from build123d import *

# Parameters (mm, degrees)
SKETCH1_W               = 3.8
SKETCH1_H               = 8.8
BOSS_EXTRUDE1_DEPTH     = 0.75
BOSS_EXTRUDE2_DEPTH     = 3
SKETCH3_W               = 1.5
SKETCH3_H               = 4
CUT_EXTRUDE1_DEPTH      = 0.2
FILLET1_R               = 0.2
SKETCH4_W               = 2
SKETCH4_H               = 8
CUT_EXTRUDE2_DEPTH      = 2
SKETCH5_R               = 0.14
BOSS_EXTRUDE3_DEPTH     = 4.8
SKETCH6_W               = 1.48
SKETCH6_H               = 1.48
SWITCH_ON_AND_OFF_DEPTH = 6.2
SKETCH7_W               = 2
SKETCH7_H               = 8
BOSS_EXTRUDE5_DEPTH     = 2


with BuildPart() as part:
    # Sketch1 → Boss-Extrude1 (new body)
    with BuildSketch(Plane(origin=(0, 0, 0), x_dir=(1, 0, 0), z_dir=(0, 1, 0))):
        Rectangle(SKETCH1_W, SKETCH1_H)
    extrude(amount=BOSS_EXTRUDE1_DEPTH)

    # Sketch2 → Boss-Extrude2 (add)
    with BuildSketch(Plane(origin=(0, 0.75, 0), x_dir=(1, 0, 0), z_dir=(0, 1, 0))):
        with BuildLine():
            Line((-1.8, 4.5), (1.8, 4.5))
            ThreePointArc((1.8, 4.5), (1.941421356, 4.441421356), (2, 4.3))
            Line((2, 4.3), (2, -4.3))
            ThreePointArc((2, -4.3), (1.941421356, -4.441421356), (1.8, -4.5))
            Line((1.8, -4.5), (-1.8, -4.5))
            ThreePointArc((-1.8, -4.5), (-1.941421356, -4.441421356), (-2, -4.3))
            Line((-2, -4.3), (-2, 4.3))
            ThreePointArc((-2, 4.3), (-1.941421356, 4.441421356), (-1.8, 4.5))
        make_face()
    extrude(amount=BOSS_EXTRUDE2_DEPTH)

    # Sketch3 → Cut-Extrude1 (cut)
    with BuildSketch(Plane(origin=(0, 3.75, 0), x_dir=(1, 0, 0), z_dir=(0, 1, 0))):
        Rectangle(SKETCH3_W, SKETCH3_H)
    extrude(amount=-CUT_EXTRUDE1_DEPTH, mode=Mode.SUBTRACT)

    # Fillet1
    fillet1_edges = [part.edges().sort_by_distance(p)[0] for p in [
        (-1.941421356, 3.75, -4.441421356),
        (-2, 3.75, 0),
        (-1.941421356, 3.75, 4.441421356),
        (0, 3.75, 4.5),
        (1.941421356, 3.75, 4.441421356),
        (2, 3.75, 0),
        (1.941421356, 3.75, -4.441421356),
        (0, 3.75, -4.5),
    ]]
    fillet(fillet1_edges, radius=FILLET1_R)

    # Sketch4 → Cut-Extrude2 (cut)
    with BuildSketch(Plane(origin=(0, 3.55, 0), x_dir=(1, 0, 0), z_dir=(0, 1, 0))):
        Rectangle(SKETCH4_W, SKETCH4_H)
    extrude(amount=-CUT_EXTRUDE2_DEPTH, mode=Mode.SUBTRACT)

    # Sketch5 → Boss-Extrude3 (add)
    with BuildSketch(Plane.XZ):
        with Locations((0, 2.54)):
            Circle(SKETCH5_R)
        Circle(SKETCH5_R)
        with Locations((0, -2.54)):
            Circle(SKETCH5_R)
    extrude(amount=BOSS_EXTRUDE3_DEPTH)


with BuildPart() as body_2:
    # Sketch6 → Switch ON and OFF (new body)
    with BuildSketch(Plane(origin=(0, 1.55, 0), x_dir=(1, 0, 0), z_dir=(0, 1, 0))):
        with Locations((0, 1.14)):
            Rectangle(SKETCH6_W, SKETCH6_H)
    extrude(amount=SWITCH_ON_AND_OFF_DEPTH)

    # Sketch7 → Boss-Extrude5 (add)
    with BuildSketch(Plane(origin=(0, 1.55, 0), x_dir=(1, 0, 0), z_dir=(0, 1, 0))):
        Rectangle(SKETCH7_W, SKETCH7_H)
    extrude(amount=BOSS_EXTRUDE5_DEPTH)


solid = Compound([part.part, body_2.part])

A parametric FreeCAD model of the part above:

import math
import FreeCAD as App
import Part
import Sketcher
from FreeCAD import Vector


def edges_at(feature, points):
    """Names of the edges that pass closest to the given points."""
    edges = feature.Shape.Edges
    near = lambda p: min(range(len(edges)), key=lambda i: edges[i].distToShape(Part.Vertex(*p))[0])
    return sorted({f"Edge{near(p) + 1}" for p in points})

doc = App.newDocument("Part")
body = doc.addObject("PartDesign::Body", "Body")

sketch1 = body.newObject("Sketcher::SketchObject", "Sketch")
sketch1.AttachmentSupport = (doc.getObject("XZ_Plane"), [""])
sketch1.MapMode = "FlatFace"
sketch1.addGeometry([
    Part.LineSegment(Vector(-1.9, -4.4, 0), Vector(-1.9, 4.4, 0)),
    Part.LineSegment(Vector(-1.9, 4.4, 0), Vector(1.9, 4.4, 0)),
    Part.LineSegment(Vector(1.9, 4.4, 0), Vector(1.9, -4.4, 0)),
    Part.LineSegment(Vector(1.9, -4.4, 0), Vector(-1.9, -4.4, 0)),
], False)
sketch1.addConstraint([
    Sketcher.Constraint("Coincident", 0, 2, 1, 1),
    Sketcher.Constraint("Coincident", 1, 2, 2, 1),
    Sketcher.Constraint("Coincident", 2, 2, 3, 1),
    Sketcher.Constraint("Coincident", 3, 2, 0, 1),
    Sketcher.Constraint("Vertical", 0),
    Sketcher.Constraint("Horizontal", 1),
    Sketcher.Constraint("Vertical", 2),
    Sketcher.Constraint("Horizontal", 3),
    Sketcher.Constraint("Symmetric", 0, 2, 2, 2, -1, 1),
    Sketcher.Constraint("DistanceX", 1, 1, 1, 2, 3.8),
    Sketcher.Constraint("DistanceY", 0, 1, 0, 2, 8.8),
])
pad1 = body.newObject("PartDesign::Pad", "Pad")
pad1.Profile = sketch1
pad1.Length = 0.75
pad1.Reversed = True

sketch2 = body.newObject("Sketcher::SketchObject", "Sketch001")
sketch2.AttachmentSupport = (doc.getObject("XZ_Plane"), [""])
sketch2.MapMode = "FlatFace"
sketch2.AttachmentOffset = App.Placement(Vector(0, 0, -0.75), App.Rotation())
sketch2.addGeometry([
    Part.LineSegment(Vector(1.8, -4.5, 0), Vector(-1.8, -4.5, 0)),
    Part.ArcOfCircle(Part.Circle(Vector(-1.8, -4.3, 0), Vector(0, 0, 1), 0.2), math.radians(-180), math.radians(-90)),
    Part.LineSegment(Vector(-2, -4.3, 0), Vector(-2, 4.3, 0)),
    Part.ArcOfCircle(Part.Circle(Vector(-1.8, 4.3, 0), Vector(0, 0, 1), 0.2), math.radians(90), math.radians(180)),
    Part.LineSegment(Vector(-1.8, 4.5, 0), Vector(1.8, 4.5, 0)),
    Part.ArcOfCircle(Part.Circle(Vector(1.8, 4.3, 0), Vector(0, 0, 1), 0.2), math.radians(0), math.radians(90)),
    Part.LineSegment(Vector(2, 4.3, 0), Vector(2, -4.3, 0)),
    Part.ArcOfCircle(Part.Circle(Vector(1.8, -4.3, 0), Vector(0, 0, 1), 0.2), math.radians(-90), math.radians(0)),
], False)
sketch2.addConstraint([
    Sketcher.Constraint("Tangent", 0, 2, 1, 2),
    Sketcher.Constraint("Tangent", 1, 1, 2, 1),
    Sketcher.Constraint("Tangent", 2, 2, 3, 2),
    Sketcher.Constraint("Tangent", 3, 1, 4, 1),
    Sketcher.Constraint("Tangent", 4, 2, 5, 2),
    Sketcher.Constraint("Tangent", 5, 1, 6, 1),
    Sketcher.Constraint("Tangent", 6, 2, 7, 2),
    Sketcher.Constraint("Tangent", 7, 1, 0, 1),
    Sketcher.Constraint("Horizontal", 0),
    Sketcher.Constraint("Vertical", 2),
    Sketcher.Constraint("Horizontal", 4),
    Sketcher.Constraint("Vertical", 6),
    Sketcher.Constraint("Equal", 1, 3),
    Sketcher.Constraint("Equal", 3, 5),
    Sketcher.Constraint("Equal", 5, 7),
    Sketcher.Constraint("Symmetric", 1, 3, 5, 3, -1, 1),
    Sketcher.Constraint("Radius", 1, 0.2),
    Sketcher.Constraint("DistanceX", 0, 2, 0, 1, 3.6),
    Sketcher.Constraint("DistanceY", 2, 1, 2, 2, 8.6),
])
pad2 = body.newObject("PartDesign::Pad", "Pad001")
pad2.Profile = sketch2
pad2.Length = 3
pad2.Reversed = True

sketch3 = body.newObject("Sketcher::SketchObject", "Sketch002")
sketch3.AttachmentSupport = (doc.getObject("XZ_Plane"), [""])
sketch3.MapMode = "FlatFace"
sketch3.AttachmentOffset = App.Placement(Vector(0, 0, -3.75), App.Rotation())
sketch3.addGeometry([
    Part.LineSegment(Vector(-0.8, -2, 0), Vector(-0.8, 2, 0)),
    Part.LineSegment(Vector(-0.8, 2, 0), Vector(0.8, 2, 0)),
    Part.LineSegment(Vector(0.8, 2, 0), Vector(0.8, -2, 0)),
    Part.LineSegment(Vector(0.8, -2, 0), Vector(-0.8, -2, 0)),
], False)
sketch3.addConstraint([
    Sketcher.Constraint("Coincident", 0, 2, 1, 1),
    Sketcher.Constraint("Coincident", 1, 2, 2, 1),
    Sketcher.Constraint("Coincident", 2, 2, 3, 1),
    Sketcher.Constraint("Coincident", 3, 2, 0, 1),
    Sketcher.Constraint("Vertical", 0),
    Sketcher.Constraint("Horizontal", 1),
    Sketcher.Constraint("Vertical", 2),
    Sketcher.Constraint("Horizontal", 3),
    Sketcher.Constraint("Symmetric", 0, 2, 2, 2, -1, 1),
    Sketcher.Constraint("DistanceY", 0, 1, 0, 2, 4.0),
    Sketcher.Constraint("DistanceX", 1, 1, 1, 2, 1.5),
])
pocket1 = body.newObject("PartDesign::Pocket", "Pocket")
pocket1.Profile = sketch3
pocket1.Length = 0.2
pocket1.Reversed = True
doc.recompute()

fillet = body.newObject("PartDesign::Fillet", "Fillet")
fillet.Base = (pocket1, edges_at(pocket1, [
    (-1.941, 3.75, -4.441),
    (-2, 3.75, 0),
    (-1.941, 3.75, 4.441),
    (0, 3.75, 4.5),
    (1.941, 3.75, 4.441),
    (2, 3.75, 0),
    (1.941, 3.75, -4.441),
    (0, 3.75, -4.5),
]))
fillet.Radius = 0.2

sketch4 = body.newObject("Sketcher::SketchObject", "Sketch003")
sketch4.AttachmentSupport = (doc.getObject("XZ_Plane"), [""])
sketch4.MapMode = "FlatFace"
sketch4.AttachmentOffset = App.Placement(Vector(0, 0, -3.55), App.Rotation())
sketch4.addGeometry([
    Part.LineSegment(Vector(-1, -4, 0), Vector(-1, 4, 0)),
    Part.LineSegment(Vector(-1, 4, 0), Vector(1, 4, 0)),
    Part.LineSegment(Vector(1, 4, 0), Vector(1, -4, 0)),
    Part.LineSegment(Vector(1, -4, 0), Vector(-1, -4, 0)),
], False)
sketch4.addConstraint([
    Sketcher.Constraint("Coincident", 0, 2, 1, 1),
    Sketcher.Constraint("Coincident", 1, 2, 2, 1),
    Sketcher.Constraint("Coincident", 2, 2, 3, 1),
    Sketcher.Constraint("Coincident", 3, 2, 0, 1),
    Sketcher.Constraint("Vertical", 0),
    Sketcher.Constraint("Horizontal", 1),
    Sketcher.Constraint("Vertical", 2),
    Sketcher.Constraint("Horizontal", 3),
    Sketcher.Constraint("Symmetric", 0, 2, 2, 2, -1, 1),
    Sketcher.Constraint("DistanceX", 1, 1, 1, 2, 2.0),
    Sketcher.Constraint("DistanceY", 0, 1, 0, 2, 8.0),
])
pocket2 = body.newObject("PartDesign::Pocket", "Pocket001")
pocket2.Profile = sketch4
pocket2.Length = 2
pocket2.Reversed = True

sketch5 = body.newObject("Sketcher::SketchObject", "Sketch004")
sketch5.AttachmentSupport = (doc.getObject("XZ_Plane"), [""])
sketch5.MapMode = "FlatFace"
sketch5.addGeometry([
    Part.Circle(Vector(0, 2.54, 0), Vector(0, 0, 1), 0.14),
    Part.Circle(Vector(0, 0, 0), Vector(0, 0, 1), 0.14),
    Part.Circle(Vector(0, -2.54, 0), Vector(0, 0, 1), 0.14),
], False)
sketch5.addConstraint([
    Sketcher.Constraint("Coincident", 1, 3, -1, 1),
    Sketcher.Constraint("Equal", 0, 1),
    Sketcher.Constraint("Equal", 1, 2),
    Sketcher.Constraint("Symmetric", 0, 3, 2, 3, -1, 1),
    Sketcher.Constraint("PointOnObject", 0, 3, -2),
    Sketcher.Constraint("Diameter", 0, 0.28),
    Sketcher.Constraint("DistanceY", -1, 1, 0, 3, 2.54),
])
pad3 = body.newObject("PartDesign::Pad", "Pad002")
pad3.Profile = sketch5
pad3.Length = 4.8
body2 = doc.addObject("PartDesign::Body", "Body001")

sketch6 = body2.newObject("Sketcher::SketchObject", "Sketch005")
sketch6.AttachmentSupport = (doc.getObject("XZ_Plane001"), [""])
sketch6.MapMode = "FlatFace"
sketch6.AttachmentOffset = App.Placement(Vector(0, 0, -1.55), App.Rotation())
sketch6.addGeometry([
    Part.LineSegment(Vector(-0.7, -1.9, 0), Vector(-0.7, -0.4, 0)),
    Part.LineSegment(Vector(-0.7, -0.4, 0), Vector(0.7, -0.4, 0)),
    Part.LineSegment(Vector(0.7, -0.4, 0), Vector(0.7, -1.9, 0)),
    Part.LineSegment(Vector(0.7, -1.9, 0), Vector(-0.7, -1.9, 0)),
], False)
sketch6.addConstraint([
    Sketcher.Constraint("Coincident", 0, 2, 1, 1),
    Sketcher.Constraint("Coincident", 1, 2, 2, 1),
    Sketcher.Constraint("Coincident", 2, 2, 3, 1),
    Sketcher.Constraint("Coincident", 3, 2, 0, 1),
    Sketcher.Constraint("Vertical", 0),
    Sketcher.Constraint("Horizontal", 1),
    Sketcher.Constraint("Vertical", 2),
    Sketcher.Constraint("Horizontal", 3),
    Sketcher.Constraint("Equal", 3, 0),
    Sketcher.Constraint("DistanceX", 1, 1, 1, 2, 1.48),
    Sketcher.Constraint("DistanceY", 0, 2, -1, 1, 0.4),
    Sketcher.Constraint("DistanceX", 0, 2, -1, 1, 0.74),
])
pad4 = body2.newObject("PartDesign::Pad", "Pad003")
pad4.Profile = sketch6
pad4.Length = 6.2
pad4.Reversed = True

sketch7 = body2.newObject("Sketcher::SketchObject", "Sketch006")
sketch7.AttachmentSupport = (doc.getObject("XZ_Plane001"), [""])
sketch7.MapMode = "FlatFace"
sketch7.AttachmentOffset = App.Placement(Vector(0, 0, -1.55), App.Rotation())
sketch7.addGeometry([
    Part.LineSegment(Vector(-1, -4, 0), Vector(-1, 4, 0)),
    Part.LineSegment(Vector(-1, 4, 0), Vector(1, 4, 0)),
    Part.LineSegment(Vector(1, 4, 0), Vector(1, -4, 0)),
    Part.LineSegment(Vector(1, -4, 0), Vector(-1, -4, 0)),
], False)
sketch7.addConstraint([
    Sketcher.Constraint("Coincident", 0, 2, 1, 1),
    Sketcher.Constraint("Coincident", 1, 2, 2, 1),
    Sketcher.Constraint("Coincident", 2, 2, 3, 1),
    Sketcher.Constraint("Coincident", 3, 2, 0, 1),
    Sketcher.Constraint("Vertical", 0),
    Sketcher.Constraint("Horizontal", 1),
    Sketcher.Constraint("Vertical", 2),
    Sketcher.Constraint("Horizontal", 3),
    Sketcher.Constraint("Symmetric", 0, 2, 2, 2, -1, 1),
    Sketcher.Constraint("DistanceX", 1, 1, 1, 2, 2.0),
    Sketcher.Constraint("DistanceY", 0, 1, 0, 2, 8.0),
])
pad5 = body2.newObject("PartDesign::Pad", "Pad004")
pad5.Profile = sketch7
pad5.Length = 2
pad5.Reversed = True

doc.recompute()
